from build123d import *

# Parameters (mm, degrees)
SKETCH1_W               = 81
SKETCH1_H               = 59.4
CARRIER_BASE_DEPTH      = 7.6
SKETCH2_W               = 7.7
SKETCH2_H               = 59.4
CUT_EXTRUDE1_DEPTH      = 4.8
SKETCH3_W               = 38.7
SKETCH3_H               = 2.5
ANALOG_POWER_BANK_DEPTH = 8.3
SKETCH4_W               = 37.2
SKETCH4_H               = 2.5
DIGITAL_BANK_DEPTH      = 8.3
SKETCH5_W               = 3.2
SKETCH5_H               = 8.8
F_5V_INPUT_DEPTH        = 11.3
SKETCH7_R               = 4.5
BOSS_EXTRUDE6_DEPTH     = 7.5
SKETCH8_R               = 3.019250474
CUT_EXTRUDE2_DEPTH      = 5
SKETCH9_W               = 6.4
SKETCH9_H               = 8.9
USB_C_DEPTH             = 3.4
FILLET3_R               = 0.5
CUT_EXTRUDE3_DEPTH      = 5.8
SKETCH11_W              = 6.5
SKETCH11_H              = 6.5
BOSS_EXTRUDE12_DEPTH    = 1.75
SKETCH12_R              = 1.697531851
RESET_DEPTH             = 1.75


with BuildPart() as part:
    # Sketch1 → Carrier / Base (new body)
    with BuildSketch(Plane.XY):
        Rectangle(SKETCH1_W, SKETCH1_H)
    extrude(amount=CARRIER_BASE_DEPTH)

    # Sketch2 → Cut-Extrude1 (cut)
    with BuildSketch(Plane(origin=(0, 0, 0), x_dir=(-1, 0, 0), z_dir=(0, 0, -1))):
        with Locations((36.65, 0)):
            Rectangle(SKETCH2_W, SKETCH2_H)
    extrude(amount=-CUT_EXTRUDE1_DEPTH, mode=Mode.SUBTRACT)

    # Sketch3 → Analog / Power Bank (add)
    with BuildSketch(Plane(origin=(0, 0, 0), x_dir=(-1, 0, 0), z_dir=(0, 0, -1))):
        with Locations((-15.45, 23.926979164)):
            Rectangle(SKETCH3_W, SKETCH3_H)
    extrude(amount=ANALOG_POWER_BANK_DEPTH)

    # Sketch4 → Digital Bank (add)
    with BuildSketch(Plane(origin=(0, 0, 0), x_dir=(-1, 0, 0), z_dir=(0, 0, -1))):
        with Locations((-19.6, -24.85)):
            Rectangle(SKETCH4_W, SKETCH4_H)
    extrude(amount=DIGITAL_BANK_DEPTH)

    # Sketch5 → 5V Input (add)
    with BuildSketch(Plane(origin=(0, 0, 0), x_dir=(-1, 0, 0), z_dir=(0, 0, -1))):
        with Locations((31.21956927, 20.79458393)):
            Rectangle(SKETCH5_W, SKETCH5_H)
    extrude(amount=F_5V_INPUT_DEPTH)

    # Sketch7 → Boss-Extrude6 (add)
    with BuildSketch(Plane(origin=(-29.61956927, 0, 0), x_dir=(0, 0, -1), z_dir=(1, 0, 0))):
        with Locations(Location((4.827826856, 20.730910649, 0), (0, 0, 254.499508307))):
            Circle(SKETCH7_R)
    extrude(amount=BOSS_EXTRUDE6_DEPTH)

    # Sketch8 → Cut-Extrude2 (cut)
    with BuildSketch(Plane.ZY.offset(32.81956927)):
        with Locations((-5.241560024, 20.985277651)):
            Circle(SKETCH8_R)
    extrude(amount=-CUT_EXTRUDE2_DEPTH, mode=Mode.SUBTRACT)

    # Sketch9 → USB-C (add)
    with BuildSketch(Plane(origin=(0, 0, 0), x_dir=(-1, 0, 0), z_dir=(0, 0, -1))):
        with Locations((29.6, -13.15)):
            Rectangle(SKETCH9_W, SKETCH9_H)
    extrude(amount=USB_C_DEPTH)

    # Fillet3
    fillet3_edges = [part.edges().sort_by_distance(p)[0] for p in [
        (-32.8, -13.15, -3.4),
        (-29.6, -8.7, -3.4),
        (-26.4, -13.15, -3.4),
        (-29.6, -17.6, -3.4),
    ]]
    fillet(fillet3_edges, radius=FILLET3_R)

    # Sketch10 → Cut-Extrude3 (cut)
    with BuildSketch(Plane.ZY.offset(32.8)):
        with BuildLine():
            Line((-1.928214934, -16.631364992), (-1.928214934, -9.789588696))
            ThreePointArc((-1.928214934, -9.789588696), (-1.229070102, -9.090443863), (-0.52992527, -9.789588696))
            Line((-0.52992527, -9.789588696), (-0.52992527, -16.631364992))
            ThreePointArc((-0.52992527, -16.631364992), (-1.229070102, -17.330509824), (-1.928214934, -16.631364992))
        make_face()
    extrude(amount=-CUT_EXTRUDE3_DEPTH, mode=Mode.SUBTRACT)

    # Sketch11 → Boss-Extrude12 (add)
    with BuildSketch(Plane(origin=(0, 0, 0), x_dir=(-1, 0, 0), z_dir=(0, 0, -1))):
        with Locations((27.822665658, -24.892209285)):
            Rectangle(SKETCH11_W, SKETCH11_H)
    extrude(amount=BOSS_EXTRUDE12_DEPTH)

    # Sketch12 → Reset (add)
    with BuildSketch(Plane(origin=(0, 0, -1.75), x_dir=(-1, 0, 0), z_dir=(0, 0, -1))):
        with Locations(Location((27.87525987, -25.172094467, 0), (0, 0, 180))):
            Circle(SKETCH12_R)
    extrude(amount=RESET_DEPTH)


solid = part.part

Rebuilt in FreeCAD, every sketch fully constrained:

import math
import FreeCAD as App
import Part
import Sketcher

V = App.Vector


def edges_at(feature, points):
    """Names of the edges that pass closest to the given points."""
    edges = feature.Shape.Edges
    near = lambda p: min(range(len(edges)), key=lambda i: edges[i].distToShape(Part.Vertex(*p))[0])
    return sorted({f"Edge{near(p) + 1}" for p in points})

doc = App.newDocument("Part")
body = doc.addObject("PartDesign::Body", "Body")

sketch1 = doc.addObject("Sketcher::SketchObject", "Sketch")
body.addObject(sketch1)
sketch1.AttachmentSupport = (doc.XY_Plane, [""])
sketch1.MapMode = "FlatFace"
sketch1.addGeometry([
    Part.LineSegment(V(-40.5, 29.7, 0), V(-40.5, -29.7, 0)),
    Part.LineSegment(V(-40.5, -29.7, 0), V(40.5, -29.7, 0)),
    Part.LineSegment(V(40.5, -29.7, 0), V(40.5, 29.7, 0)),
    Part.LineSegment(V(40.5, 29.7, 0), V(-40.5, 29.7, 0)),
], False)
sketch1.addConstraint([
    Sketcher.Constraint("Coincident", 0, 2, 1, 1),
    Sketcher.Constraint("Coincident", 1, 2, 2, 1),
    Sketcher.Constraint("Coincident", 2, 2, 3, 1),
    Sketcher.Constraint("Coincident", 3, 2, 0, 1),
    Sketcher.Constraint("Vertical", 0),
    Sketcher.Constraint("Horizontal", 1),
    Sketcher.Constraint("Vertical", 2),
    Sketcher.Constraint("Horizontal", 3),
    Sketcher.Constraint("Symmetric", 0, 2, 2, 2, -1, 1),
    Sketcher.Constraint("DistanceX", 1, 1, 1, 2, 81.0),
    Sketcher.Constraint("DistanceY", 0, 2, 0, 1, 59.4),
])
pad1 = doc.addObject("PartDesign::Pad", "Pad")
body.addObject(pad1)
pad1.Profile = sketch1
pad1.Length = 7.6

sketch2 = doc.addObject("Sketcher::SketchObject", "Sketch001")
body.addObject(sketch2)
sketch2.AttachmentSupport = (doc.XY_Plane, [""])
sketch2.MapMode = "FlatFace"
sketch2.addGeometry([
    Part.LineSegment(V(-32.8, 29.7, 0), V(-32.8, -29.7, 0)),
    Part.LineSegment(V(-32.8, -29.7, 0), V(-40.5, -29.7, 0)),
    Part.LineSegment(V(-40.5, -29.7, 0), V(-40.5, 29.7, 0)),
    Part.LineSegment(V(-40.5, 29.7, 0), V(-32.8, 29.7, 0)),
], False)
sketch2.addConstraint([
    Sketcher.Constraint("Coincident", 0, 2, 1, 1),
    Sketcher.Constraint("Coincident", 1, 2, 2, 1),
    Sketcher.Constraint("Coincident", 2, 2, 3, 1),
    Sketcher.Constraint("Coincident", 3, 2, 0, 1),
    Sketcher.Constraint("Vertical", 0),
    Sketcher.Constraint("Horizontal", 1),
    Sketcher.Constraint("Vertical", 2),
    Sketcher.Constraint("Horizontal", 3),
    Sketcher.Constraint("DistanceX", 1, 2, 1, 1, 7.7),
    Sketcher.Constraint("DistanceY", 0, 2, 0, 1, 59.4),
    Sketcher.Constraint("DistanceX", 0, 2, -1, 1, 32.8),
    Sketcher.Constraint("DistanceY", 0, 2, -1, 1, 29.7),
])
pocket1 = doc.addObject("PartDesign::Pocket", "Pocket")
body.addObject(pocket1)
pocket1.Profile = sketch2
pocket1.Length = 4.8
pocket1.Reversed = True

sketch3 = doc.addObject("Sketcher::SketchObject", "Sketch002")
body.addObject(sketch3)
sketch3.AttachmentSupport = (doc.XY_Plane, [""])
sketch3.MapMode = "FlatFace"
sketch3.addGeometry([
    Part.LineSegment(V(34.8, 25.176979, 0), V(34.8, 22.676979, 0)),
    Part.LineSegment(V(34.8, 22.676979, 0), V(-3.9, 22.676979, 0)),
    Part.LineSegment(V(-3.9, 22.676979, 0), V(-3.9, 25.176979, 0)),
    Part.LineSegment(V(-3.9, 25.176979, 0), V(34.8, 25.176979, 0)),
], False)
sketch3.addConstraint([
    Sketcher.Constraint("Coincident", 0, 2, 1, 1),
    Sketcher.Constraint("Coincident", 1, 2, 2, 1),
    Sketcher.Constraint("Coincident", 2, 2, 3, 1),
    Sketcher.Constraint("Coincident", 3, 2, 0, 1),
    Sketcher.Constraint("Vertical", 0),
    Sketcher.Constraint("Horizontal", 1),
    Sketcher.Constraint("Vertical", 2),
    Sketcher.Constraint("Horizontal", 3),
    Sketcher.Constraint("DistanceX", 1, 2, 1, 1, 38.7),
    Sketcher.Constraint("DistanceY", 0, 2, 0, 1, 2.5),
    Sketcher.Constraint("DistanceX", -1, 1, 0, 2, 34.8),
    Sketcher.Constraint("DistanceY", -1, 1, 0, 2, 22.676979),
])
pad2 = doc.addObject("PartDesign::Pad", "Pad001")
body.addObject(pad2)
pad2.Profile = sketch3
pad2.Length = 8.3
pad2.Reversed = True

sketch4 = doc.addObject("Sketcher::SketchObject", "Sketch003")
body.addObject(sketch4)
sketch4.AttachmentSupport = (doc.XY_Plane, [""])
sketch4.MapMode = "FlatFace"
sketch4.addGeometry([
    Part.LineSegment(V(38.2, -23.6, 0), V(38.2, -26.1, 0)),
    Part.LineSegment(V(38.2, -26.1, 0), V(1, -26.1, 0)),
    Part.LineSegment(V(1, -26.1, 0), V(1, -23.6, 0)),
    Part.LineSegment(V(1, -23.6, 0), V(38.2, -23.6, 0)),
], False)
sketch4.addConstraint([
    Sketcher.Constraint("Coincident", 0, 2, 1, 1),
    Sketcher.Constraint("Coincident", 1, 2, 2, 1),
    Sketcher.Constraint("Coincident", 2, 2, 3, 1),
    Sketcher.Constraint("Coincident", 3, 2, 0, 1),
    Sketcher.Constraint("Vertical", 0),
    Sketcher.Constraint("Horizontal", 1),
    Sketcher.Constraint("Vertical", 2),
    Sketcher.Constraint("Horizontal", 3),
    Sketcher.Constraint("DistanceX", 1, 2, 1, 1, 37.2),
    Sketcher.Constraint("DistanceY", 0, 2, 0, 1, 2.5),
    Sketcher.Constraint("DistanceX", -1, 1, 1, 2, 1.0),
    Sketcher.Constraint("DistanceY", 0, 2, -1, 1, 26.1),
])
pad3 = doc.addObject("PartDesign::Pad", "Pad002")
body.addObject(pad3)
pad3.Profile = sketch4
pad3.Length = 8.3
pad3.Reversed = True

sketch5 = doc.addObject("Sketcher::SketchObject", "Sketch004")
body.addObject(sketch5)
sketch5.AttachmentSupport = (doc.XY_Plane, [""])
sketch5.MapMode = "FlatFace"
sketch5.addGeometry([
    Part.LineSegment(V(-29.619569, 25.194584, 0), V(-29.619569, 16.394584, 0)),
    Part.LineSegment(V(-29.619569, 16.394584, 0), V(-32.819569, 16.394584, 0)),
    Part.LineSegment(V(-32.819569, 16.394584, 0), V(-32.819569, 25.194584, 0)),
    Part.LineSegment(V(-32.819569, 25.194584, 0), V(-29.619569, 25.194584, 0)),
], False)
sketch5.addConstraint([
    Sketcher.Constraint("Coincident", 0, 2, 1, 1),
    Sketcher.Constraint("Coincident", 1, 2, 2, 1),
    Sketcher.Constraint("Coincident", 2, 2, 3, 1),
    Sketcher.Constraint("Coincident", 3, 2, 0, 1),
    Sketcher.Constraint("Vertical", 0),
    Sketcher.Constraint("Horizontal", 1),
    Sketcher.Constraint("Vertical", 2),
    Sketcher.Constraint("Horizontal", 3),
    Sketcher.Constraint("DistanceX", 1, 2, 1, 1, 3.2),
    Sketcher.Constraint("DistanceY", 0, 2, 0, 1, 8.8),
    Sketcher.Constraint("DistanceX", 0, 2, -1, 1, 29.619569),
    Sketcher.Constraint("DistanceY", -1, 1, 0, 2, 16.394584),
])
pad4 = doc.addObject("PartDesign::Pad", "Pad003")
body.addObject(pad4)
pad4.Profile = sketch5
pad4.Length = 11.3
pad4.Reversed = True

sketch6 = doc.addObject("Sketcher::SketchObject", "Sketch005")
body.addObject(sketch6)
sketch6.AttachmentSupport = (doc.YZ_Plane, [""])
sketch6.MapMode = "FlatFace"
sketch6.AttachmentOffset = App.Placement(V(0, 0, -29.619569), App.Rotation())
sketch6.addGeometry(Part.Circle(V(20.730911, -4.827827, 0), V(0, 0, 1), 4.5), False)
sketch6.addConstraint([
    Sketcher.Constraint("Diameter", 0, 9.0),
    Sketcher.Constraint("DistanceX", -1, 1, 0, 3, 20.730911),
    Sketcher.Constraint("DistanceY", 0, 3, -1, 1, 4.827827),
])
pad5 = doc.addObject("PartDesign::Pad", "Pad004")
body.addObject(pad5)
pad5.Profile = sketch6
pad5.Length = 7.5

sketch7 = doc.addObject("Sketcher::SketchObject", "Sketch006")
body.addObject(sketch7)
sketch7.AttachmentSupport = (doc.YZ_Plane, [""])
sketch7.MapMode = "FlatFace"
sketch7.AttachmentOffset = App.Placement(V(0, 0, -32.819569), App.Rotation())
sketch7.addGeometry(Part.Circle(V(20.985278, -5.24156, 0), V(0, 0, 1), 3.01925), False)
sketch7.addConstraint([
    Sketcher.Constraint("Diameter", 0, 6.038501),
    Sketcher.Constraint("DistanceY", 0, 3, -1, 1, 5.24156),
    Sketcher.Constraint("DistanceX", -1, 1, 0, 3, 20.985278),
])
pocket2 = doc.addObject("PartDesign::Pocket", "Pocket001")
body.addObject(pocket2)
pocket2.Profile = sketch7
pocket2.Length = 5
pocket2.Reversed = True

sketch8 = doc.addObject("Sketcher::SketchObject", "Sketch007")
body.addObject(sketch8)
sketch8.AttachmentSupport = (doc.XY_Plane, [""])
sketch8.MapMode = "FlatFace"
sketch8.addGeometry([
    Part.LineSegment(V(-26.4, -8.7, 0), V(-26.4, -17.6, 0)),
    Part.LineSegment(V(-26.4, -17.6, 0), V(-32.8, -17.6, 0)),
    Part.LineSegment(V(-32.8, -17.6, 0), V(-32.8, -8.7, 0)),
    Part.LineSegment(V(-32.8, -8.7, 0), V(-26.4, -8.7, 0)),
], False)
sketch8.addConstraint([
    Sketcher.Constraint("Coincident", 0, 2, 1, 1),
    Sketcher.Constraint("Coincident", 1, 2, 2, 1),
    Sketcher.Constraint("Coincident", 2, 2, 3, 1),
    Sketcher.Constraint("Coincident", 3, 2, 0, 1),
    Sketcher.Constraint("Vertical", 0),
    Sketcher.Constraint("Horizontal", 1),
    Sketcher.Constraint("Vertical", 2),
    Sketcher.Constraint("Horizontal", 3),
    Sketcher.Constraint("DistanceX", 1, 2, 1, 1, 6.4),
    Sketcher.Constraint("DistanceY", 0, 2, 0, 1, 8.9),
    Sketcher.Constraint("DistanceX", 0, 2, -1, 1, 26.4),
    Sketcher.Constraint("DistanceY", 0, 2, -1, 1, 17.6),
])
pad6 = doc.addObject("PartDesign::Pad", "Pad005")
body.addObject(pad6)
pad6.Profile = sketch8
pad6.Length = 3.4
pad6.Reversed = True
doc.recompute()

fillet = doc.addObject("PartDesign::Fillet", "Fillet")
body.addObject(fillet)
fillet.Base = (pad6, edges_at(pad6, [
    (-32.8, -13.15, -3.4),
    (-29.6, -8.7, -3.4),
    (-26.4, -13.15, -3.4),
    (-29.6, -17.6, -3.4),
]))
fillet.Radius = 0.5

sketch9 = doc.addObject("Sketcher::SketchObject", "Sketch008")
body.addObject(sketch9)
sketch9.AttachmentSupport = (doc.YZ_Plane, [""])
sketch9.MapMode = "FlatFace"
sketch9.AttachmentOffset = App.Placement(V(0, 0, -32.8), App.Rotation())
sketch9.addGeometry([
    Part.LineSegment(V(-9.789589, -1.928215, 0), V(-16.631365, -1.928215, 0)),
    Part.ArcOfCircle(Part.Circle(V(-16.631365, -1.22907, 0), V(0, 0, 1), 0.699145), math.radians(90), math.radians(270)),
    Part.LineSegment(V(-16.631365, -0.529925, 0), V(-9.789589, -0.529925, 0)),
    Part.ArcOfCircle(Part.Circle(V(-9.789589, -1.22907, 0), V(0, 0, 1), 0.699145), math.radians(-90), math.radians(90)),
], False)
sketch9.addConstraint([
    Sketcher.Constraint("Tangent", 0, 2, 1, 2),
    Sketcher.Constraint("Tangent", 1, 1, 2, 1),
    Sketcher.Constraint("Tangent", 2, 2, 3, 2),
    Sketcher.Constraint("Tangent", 3, 1, 0, 1),
    Sketcher.Constraint("Horizontal", 0),
    Sketcher.Constraint("Horizontal", 2),
    Sketcher.Constraint("Radius", 1, 0.699145),
    Sketcher.Constraint("DistanceX", 0, 2, 0, 1, 6.841776),
    Sketcher.Constraint("DistanceY", 1, 3, -1, 1, 1.22907),
    Sketcher.Constraint("DistanceX", 3, 3, -1, 1, 9.789589),
])
pocket3 = doc.addObject("PartDesign::Pocket", "Pocket002")
body.addObject(pocket3)
pocket3.Profile = sketch9
pocket3.Length = 5.8
pocket3.Reversed = True

sketch10 = doc.addObject("Sketcher::SketchObject", "Sketch009")
body.addObject(sketch10)
sketch10.AttachmentSupport = (doc.XY_Plane, [""])
sketch10.MapMode = "FlatFace"
sketch10.addGeometry([
    Part.LineSegment(V(-24.572666, -21.642209, 0), V(-24.572666, -28.142209, 0)),
    Part.LineSegment(V(-24.572666, -28.142209, 0), V(-31.072666, -28.142209, 0)),
    Part.LineSegment(V(-31.072666, -28.142209, 0), V(-31.072666, -21.642209, 0)),
    Part.LineSegment(V(-31.072666, -21.642209, 0), V(-24.572666, -21.642209, 0)),
], False)
sketch10.addConstraint([
    Sketcher.Constraint("Coincident", 0, 2, 1, 1),
    Sketcher.Constraint("Coincident", 1, 2, 2, 1),
    Sketcher.Constraint("Coincident", 2, 2, 3, 1),
    Sketcher.Constraint("Coincident", 3, 2, 0, 1),
    Sketcher.Constraint("Vertical", 0),
    Sketcher.Constraint("Horizontal", 1),
    Sketcher.Constraint("Vertical", 2),
    Sketcher.Constraint("Horizontal", 3),
    Sketcher.Constraint("Equal", 3, 0),
    Sketcher.Constraint("DistanceX", 1, 2, 1, 1, 6.5),
    Sketcher.Constraint("DistanceY", 0, 2, -1, 1, 28.142209),
    Sketcher.Constraint("DistanceX", 0, 2, -1, 1, 24.572666),
])
pad7 = doc.addObject("PartDesign::Pad", "Pad006")
body.addObject(pad7)
pad7.Profile = sketch10
pad7.Length = 1.75
pad7.Reversed = True

sketch11 = doc.addObject("Sketcher::SketchObject", "Sketch010")
body.addObject(sketch11)
sketch11.AttachmentSupport = (doc.XY_Plane, [""])
sketch11.MapMode = "FlatFace"
sketch11.AttachmentOffset = App.Placement(V(0, 0, -1.75), App.Rotation())
sketch11.addGeometry(Part.Circle(V(-27.87526, -25.172094, 0), V(0, 0, 1), 1.697532), False)
sketch11.addConstraint([
    Sketcher.Constraint("Diameter", 0, 3.395064),
    Sketcher.Constraint("DistanceX", 0, 3, -1, 1, 27.87526),
    Sketcher.Constraint("DistanceY", 0, 3, -1, 1, 25.172094),
])
pad8 = doc.addObject("PartDesign::Pad", "Pad007")
body.addObject(pad8)
pad8.Profile = sketch11
pad8.Length = 1.75
pad8.Reversed = True

doc.recompute()
